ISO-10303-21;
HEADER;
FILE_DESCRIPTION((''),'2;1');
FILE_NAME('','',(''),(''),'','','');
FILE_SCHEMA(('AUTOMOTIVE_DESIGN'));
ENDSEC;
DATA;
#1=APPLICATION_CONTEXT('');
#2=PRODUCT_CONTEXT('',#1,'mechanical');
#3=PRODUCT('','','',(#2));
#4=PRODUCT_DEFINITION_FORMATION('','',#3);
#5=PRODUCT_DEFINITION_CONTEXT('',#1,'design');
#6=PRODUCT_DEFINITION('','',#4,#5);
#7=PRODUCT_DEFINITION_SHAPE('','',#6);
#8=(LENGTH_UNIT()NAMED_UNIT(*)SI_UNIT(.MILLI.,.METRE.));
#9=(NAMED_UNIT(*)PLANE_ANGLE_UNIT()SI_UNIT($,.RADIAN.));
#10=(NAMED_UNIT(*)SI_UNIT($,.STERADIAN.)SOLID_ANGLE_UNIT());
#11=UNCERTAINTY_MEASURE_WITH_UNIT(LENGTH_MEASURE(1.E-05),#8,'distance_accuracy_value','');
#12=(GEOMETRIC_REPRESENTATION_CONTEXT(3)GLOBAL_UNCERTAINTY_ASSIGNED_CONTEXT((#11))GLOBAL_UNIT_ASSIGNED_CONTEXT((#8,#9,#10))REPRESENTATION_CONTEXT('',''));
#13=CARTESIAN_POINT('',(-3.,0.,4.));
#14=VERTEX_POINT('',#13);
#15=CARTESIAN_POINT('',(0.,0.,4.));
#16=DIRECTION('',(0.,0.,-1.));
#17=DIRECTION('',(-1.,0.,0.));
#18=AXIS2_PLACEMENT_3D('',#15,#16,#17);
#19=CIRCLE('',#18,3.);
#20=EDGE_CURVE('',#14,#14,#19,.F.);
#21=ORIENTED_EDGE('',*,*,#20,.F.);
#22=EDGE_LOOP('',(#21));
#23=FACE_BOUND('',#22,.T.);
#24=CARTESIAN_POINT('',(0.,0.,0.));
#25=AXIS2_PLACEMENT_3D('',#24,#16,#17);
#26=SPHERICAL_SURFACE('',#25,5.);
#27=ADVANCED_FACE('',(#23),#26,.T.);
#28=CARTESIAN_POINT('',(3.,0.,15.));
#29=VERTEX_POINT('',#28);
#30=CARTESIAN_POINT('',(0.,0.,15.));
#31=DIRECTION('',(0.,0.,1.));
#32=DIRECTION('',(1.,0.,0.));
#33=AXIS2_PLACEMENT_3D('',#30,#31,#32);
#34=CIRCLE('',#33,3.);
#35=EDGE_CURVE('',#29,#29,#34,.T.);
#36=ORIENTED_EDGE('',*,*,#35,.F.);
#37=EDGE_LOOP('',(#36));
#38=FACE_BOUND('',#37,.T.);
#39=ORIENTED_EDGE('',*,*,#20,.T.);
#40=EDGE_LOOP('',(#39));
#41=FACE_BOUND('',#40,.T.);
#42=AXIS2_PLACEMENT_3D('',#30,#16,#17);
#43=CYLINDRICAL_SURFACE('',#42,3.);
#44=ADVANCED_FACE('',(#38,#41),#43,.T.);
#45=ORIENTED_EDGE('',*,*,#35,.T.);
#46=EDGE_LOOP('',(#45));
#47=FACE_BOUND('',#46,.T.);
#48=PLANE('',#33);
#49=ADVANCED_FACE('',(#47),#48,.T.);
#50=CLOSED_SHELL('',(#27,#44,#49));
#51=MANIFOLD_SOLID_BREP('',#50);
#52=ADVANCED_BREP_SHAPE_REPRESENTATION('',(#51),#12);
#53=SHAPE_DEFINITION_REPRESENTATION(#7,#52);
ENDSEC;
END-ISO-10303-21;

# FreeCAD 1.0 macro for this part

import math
import FreeCAD as App
import Part
import Sketcher

V = App.Vector
Q = App.Units.Quantity

doc = App.newDocument("Part")
params = doc.addObject("Spreadsheet::Sheet", "Params")
for row, (alias, value) in enumerate([
    ("sketch1_radius", "5 mm"),
    ("revolution_angle", "360 deg"),
    ("sketch2_diameter", "6 mm"),
    ("pad1_length", "15 mm"),
], start=1):
    params.set(f"A{row}", alias)
    params.set(f"B{row}", "=" + value)
    params.setAlias(f"B{row}", alias)

body = doc.addObject("PartDesign::Body", "Body")

sketch1 = body.newObject("Sketcher::SketchObject", "Sketch")
sketch1.AttachmentSupport = (doc.getObject("XY_Plane"), [""])
sketch1.MapMode = "FlatFace"
sketch1.addGeometry([
    Part.LineSegment(V(0, -5, 0), V(0, 5, 0)),
    Part.ArcOfCircle(Part.Circle(V(0, 0, 0), V(0, 0, 1), 5), math.radians(90), math.radians(270)),
], False)
sketch1.addConstraint([
    Sketcher.Constraint("Coincident", 0, 1, 1, 2),
    Sketcher.Constraint("Coincident", 1, 1, 0, 2),
    Sketcher.Constraint("Vertical", 0),
    Sketcher.Constraint("Coincident", 1, 3, -1, 1),
    Sketcher.Constraint("PointOnObject", 0, 1, -2),
    Sketcher.Constraint("Radius", 1, Q("5 mm")),
])
sketch1.setExpression("Constraints[5]", "Params.sketch1_radius")
revolution = body.newObject("PartDesign::Revolution", "Revolution")
revolution.Profile = sketch1
revolution.ReferenceAxis = (sketch1, ["V_Axis"])
revolution.setExpression("Angle", "Params.revolution_angle")

sketch2 = body.newObject("Sketcher::SketchObject", "Sketch001")
sketch2.AttachmentSupport = (doc.getObject("XY_Plane"), [""])
sketch2.MapMode = "FlatFace"
sketch2.addGeometry(Part.Circle(V(0, 0, 0), V(0, 0, 1), 3), False)
sketch2.addConstraint([
    Sketcher.Constraint("Coincident", 0, 3, -1, 1),
    Sketcher.Constraint("Diameter", 0, Q("6 mm")),
])
sketch2.setExpression("Constraints[1]", "Params.sketch2_diameter")
pad1 = body.newObject("PartDesign::Pad", "Pad")
pad1.Profile = sketch2
pad1.setExpression("Length", "Params.pad1_length")

doc.recompute()
